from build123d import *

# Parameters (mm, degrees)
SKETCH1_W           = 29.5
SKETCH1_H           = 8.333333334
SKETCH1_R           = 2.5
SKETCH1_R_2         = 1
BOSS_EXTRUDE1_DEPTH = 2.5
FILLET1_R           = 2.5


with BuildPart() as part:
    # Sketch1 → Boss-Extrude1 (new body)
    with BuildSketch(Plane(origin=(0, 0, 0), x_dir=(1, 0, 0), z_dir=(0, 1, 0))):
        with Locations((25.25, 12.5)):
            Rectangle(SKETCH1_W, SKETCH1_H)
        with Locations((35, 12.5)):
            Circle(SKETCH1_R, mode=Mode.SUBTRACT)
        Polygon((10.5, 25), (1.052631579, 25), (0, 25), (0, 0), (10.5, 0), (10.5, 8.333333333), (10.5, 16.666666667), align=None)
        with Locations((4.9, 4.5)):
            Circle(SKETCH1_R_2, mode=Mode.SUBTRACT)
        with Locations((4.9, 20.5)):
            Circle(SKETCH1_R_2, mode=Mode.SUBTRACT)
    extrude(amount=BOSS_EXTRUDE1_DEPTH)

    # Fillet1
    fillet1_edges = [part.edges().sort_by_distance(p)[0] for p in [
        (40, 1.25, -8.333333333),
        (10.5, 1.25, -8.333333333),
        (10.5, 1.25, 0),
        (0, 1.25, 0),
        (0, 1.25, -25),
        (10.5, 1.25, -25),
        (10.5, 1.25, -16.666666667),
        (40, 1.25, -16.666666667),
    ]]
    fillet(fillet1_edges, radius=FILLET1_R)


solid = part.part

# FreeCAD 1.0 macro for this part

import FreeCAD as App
import Part
import Sketcher


def edges_at(feature, points):
    """Names of the edges that pass closest to the given points."""
    edges = feature.Shape.Edges
    near = lambda p: min(range(len(edges)), key=lambda i: edges[i].distToShape(Part.Vertex(*p))[0])
    return sorted({f"Edge{near(p) + 1}" for p in points})


def add_polygon(sketch, points):
    """Adds a closed chain of lines whose ends are joined by coincident constraints."""
    first, n = sketch.GeometryCount, len(points)
    for a, b in zip(points, points[1:] + points[:1]):
        sketch.addGeometry(Part.LineSegment(App.Vector(*a, 0), App.Vector(*b, 0)), False)
    for i in range(n):
        sketch.addConstraint(Sketcher.Constraint("Coincident", first + i, 2, first + (i + 1) % n, 1))

doc = App.newDocument("Part")
body = doc.addObject("PartDesign::Body", "Body")

sketch1 = doc.addObject("Sketcher::SketchObject", "Sketch")
body.addObject(sketch1)
sketch1.AttachmentSupport = (doc.XZ_Plane, [""])
sketch1.MapMode = "FlatFace"
add_polygon(sketch1, [(10.5, -8.3), (40, -8.3), (40, -16.7), (10.5, -16.7), (10.5, -25), (0, -25), (0, 0), (10.5, 0)])
sketch1.addGeometry(Part.Circle(App.Vector(4.9, -4.5, 0), App.Vector(0, 0, 1), 1), False)
sketch1.addGeometry(Part.Circle(App.Vector(4.9, -20.5, 0), App.Vector(0, 0, 1), 1), False)
sketch1.addGeometry(Part.Circle(App.Vector(35, -12.5, 0), App.Vector(0, 0, 1), 2.5), False)
sketch1.addConstraint([
    Sketcher.Constraint("Horizontal", 0),
    Sketcher.Constraint("Vertical", 1),
    Sketcher.Constraint("Horizontal", 2),
    Sketcher.Constraint("Vertical", 3),
    Sketcher.Constraint("Horizontal", 4),
    Sketcher.Constraint("Vertical", 5),
    Sketcher.Constraint("Horizontal", 6),
    Sketcher.Constraint("Vertical", 7),
    Sketcher.Constraint("Coincident", 5, 2, -1, 1),
    Sketcher.Constraint("Equal", 8, 9),
    Sketcher.Constraint("Vertical", 8, 3, 9, 3),
    Sketcher.Constraint("Vertical", 3, 2, 6, 2),
    Sketcher.Constraint("Equal", 1, 3),
    Sketcher.Constraint("Equal", 3, 7),
    Sketcher.Constraint("Diameter", 8, 2.0),
    Sketcher.Constraint("Diameter", 10, 5.0),
    Sketcher.Constraint("DistanceY", 5, 1, 5, 2, 25.0),
    Sketcher.Constraint("DistanceX", 0, 1, 0, 2, 29.5),
    Sketcher.Constraint("DistanceX", 4, 2, 4, 1, 10.5),
    Sketcher.Constraint("DistanceX", -1, 1, 10, 3, 35.0),
    Sketcher.Constraint("DistanceY", 9, 3, 8, 3, 16.0),
    Sketcher.Constraint("DistanceY", 10, 3, 8, 3, 8.0),
    Sketcher.Constraint("DistanceX", -1, 1, 8, 3, 4.9),
    Sketcher.Constraint("DistanceY", 8, 3, -1, 1, 4.5),
])
pad1 = doc.addObject("PartDesign::Pad", "Pad")
body.addObject(pad1)
pad1.Profile = sketch1
pad1.Length = 2.5
pad1.Reversed = True
doc.recompute()

fillet = doc.addObject("PartDesign::Fillet", "Fillet")
body.addObject(fillet)
fillet.Base = (pad1, edges_at(pad1, [
    (40, 1.25, -8.333),
    (10.5, 1.25, -8.333),
    (10.5, 1.25, 0),
    (0, 1.25, 0),
    (0, 1.25, -25),
    (10.5, 1.25, -25),
    (10.5, 1.25, -16.667),
    (40, 1.25, -16.667),
]))
fillet.Radius = 2.5

doc.recompute()
